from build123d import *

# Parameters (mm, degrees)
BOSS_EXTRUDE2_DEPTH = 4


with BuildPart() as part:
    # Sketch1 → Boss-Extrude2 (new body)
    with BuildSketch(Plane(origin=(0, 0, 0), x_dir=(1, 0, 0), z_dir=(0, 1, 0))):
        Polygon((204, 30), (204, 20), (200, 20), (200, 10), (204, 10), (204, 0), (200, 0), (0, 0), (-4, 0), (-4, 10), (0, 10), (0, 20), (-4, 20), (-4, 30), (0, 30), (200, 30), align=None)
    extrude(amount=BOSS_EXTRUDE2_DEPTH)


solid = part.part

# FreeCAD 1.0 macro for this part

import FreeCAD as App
import Part
import Sketcher
from FreeCAD import Vector
Q = App.Units.Quantity


def add_polygon(sketch, points):
    """Adds a closed chain of lines whose ends are joined by coincident constraints."""
    first, n = sketch.GeometryCount, len(points)
    for a, b in zip(points, points[1:] + points[:1]):
        sketch.addGeometry(Part.LineSegment(App.Vector(*a, 0), App.Vector(*b, 0)), False)
    for i in range(n):
        sketch.addConstraint(Sketcher.Constraint("Coincident", first + i, 2, first + (i + 1) % n, 1))

doc = App.newDocument("Part")
body = doc.addObject("PartDesign::Body", "Body")

sketch1 = doc.addObject("Sketcher::SketchObject", "Sketch")
body.addObject(sketch1)
sketch1.AttachmentSupport = (doc.XZ_Plane, [""])
sketch1.MapMode = "FlatFace"
add_polygon(sketch1, [(204, -20), (204, -30), (-4, -30), (-4, -20), (0, -20), (0, -10), (-4, -10), (-4, 0), (204, 0), (204, -10), (200, -10), (200, -20)])
sketch1.addConstraint([
    Sketcher.Constraint("Vertical", 0),
    Sketcher.Constraint("Horizontal", 1),
    Sketcher.Constraint("Vertical", 2),
    Sketcher.Constraint("Horizontal", 3),
    Sketcher.Constraint("Vertical", 4),
    Sketcher.Constraint("Horizontal", 5),
    Sketcher.Constraint("Vertical", 6),
    Sketcher.Constraint("Horizontal", 7),
    Sketcher.Constraint("Vertical", 8),
    Sketcher.Constraint("Horizontal", 9),
    Sketcher.Constraint("Vertical", 10),
    Sketcher.Constraint("Horizontal", 11),
    Sketcher.Constraint("PointOnObject", 3, 2, -2),
    Sketcher.Constraint("PointOnObject", 6, 2, -1),
    Sketcher.Constraint("Horizontal", 5, 2, 8, 2),
    Sketcher.Constraint("Horizontal", 3, 2, 10, 2),
    Sketcher.Constraint("Vertical", 2, 2, 5, 2),
    Sketcher.Constraint("Vertical", 0, 2, 7, 2),
    Sketcher.Constraint("Equal", 5, 9),
    Sketcher.Constraint("Equal", 2, 4),
    Sketcher.Constraint("Equal", 4, 6),
    Sketcher.Constraint("DistanceX", 1, 2, 1, 1, Q("208 mm")),
    Sketcher.Constraint("DistanceX", 3, 1, 3, 2, Q("4 mm")),
    Sketcher.Constraint("DistanceY", 0, 2, 0, 1, Q("10 mm")),
])
pad1 = doc.addObject("PartDesign::Pad", "Pad")
body.addObject(pad1)
pad1.Profile = sketch1
pad1.Length = 4
pad1.Reversed = True

doc.recompute()
